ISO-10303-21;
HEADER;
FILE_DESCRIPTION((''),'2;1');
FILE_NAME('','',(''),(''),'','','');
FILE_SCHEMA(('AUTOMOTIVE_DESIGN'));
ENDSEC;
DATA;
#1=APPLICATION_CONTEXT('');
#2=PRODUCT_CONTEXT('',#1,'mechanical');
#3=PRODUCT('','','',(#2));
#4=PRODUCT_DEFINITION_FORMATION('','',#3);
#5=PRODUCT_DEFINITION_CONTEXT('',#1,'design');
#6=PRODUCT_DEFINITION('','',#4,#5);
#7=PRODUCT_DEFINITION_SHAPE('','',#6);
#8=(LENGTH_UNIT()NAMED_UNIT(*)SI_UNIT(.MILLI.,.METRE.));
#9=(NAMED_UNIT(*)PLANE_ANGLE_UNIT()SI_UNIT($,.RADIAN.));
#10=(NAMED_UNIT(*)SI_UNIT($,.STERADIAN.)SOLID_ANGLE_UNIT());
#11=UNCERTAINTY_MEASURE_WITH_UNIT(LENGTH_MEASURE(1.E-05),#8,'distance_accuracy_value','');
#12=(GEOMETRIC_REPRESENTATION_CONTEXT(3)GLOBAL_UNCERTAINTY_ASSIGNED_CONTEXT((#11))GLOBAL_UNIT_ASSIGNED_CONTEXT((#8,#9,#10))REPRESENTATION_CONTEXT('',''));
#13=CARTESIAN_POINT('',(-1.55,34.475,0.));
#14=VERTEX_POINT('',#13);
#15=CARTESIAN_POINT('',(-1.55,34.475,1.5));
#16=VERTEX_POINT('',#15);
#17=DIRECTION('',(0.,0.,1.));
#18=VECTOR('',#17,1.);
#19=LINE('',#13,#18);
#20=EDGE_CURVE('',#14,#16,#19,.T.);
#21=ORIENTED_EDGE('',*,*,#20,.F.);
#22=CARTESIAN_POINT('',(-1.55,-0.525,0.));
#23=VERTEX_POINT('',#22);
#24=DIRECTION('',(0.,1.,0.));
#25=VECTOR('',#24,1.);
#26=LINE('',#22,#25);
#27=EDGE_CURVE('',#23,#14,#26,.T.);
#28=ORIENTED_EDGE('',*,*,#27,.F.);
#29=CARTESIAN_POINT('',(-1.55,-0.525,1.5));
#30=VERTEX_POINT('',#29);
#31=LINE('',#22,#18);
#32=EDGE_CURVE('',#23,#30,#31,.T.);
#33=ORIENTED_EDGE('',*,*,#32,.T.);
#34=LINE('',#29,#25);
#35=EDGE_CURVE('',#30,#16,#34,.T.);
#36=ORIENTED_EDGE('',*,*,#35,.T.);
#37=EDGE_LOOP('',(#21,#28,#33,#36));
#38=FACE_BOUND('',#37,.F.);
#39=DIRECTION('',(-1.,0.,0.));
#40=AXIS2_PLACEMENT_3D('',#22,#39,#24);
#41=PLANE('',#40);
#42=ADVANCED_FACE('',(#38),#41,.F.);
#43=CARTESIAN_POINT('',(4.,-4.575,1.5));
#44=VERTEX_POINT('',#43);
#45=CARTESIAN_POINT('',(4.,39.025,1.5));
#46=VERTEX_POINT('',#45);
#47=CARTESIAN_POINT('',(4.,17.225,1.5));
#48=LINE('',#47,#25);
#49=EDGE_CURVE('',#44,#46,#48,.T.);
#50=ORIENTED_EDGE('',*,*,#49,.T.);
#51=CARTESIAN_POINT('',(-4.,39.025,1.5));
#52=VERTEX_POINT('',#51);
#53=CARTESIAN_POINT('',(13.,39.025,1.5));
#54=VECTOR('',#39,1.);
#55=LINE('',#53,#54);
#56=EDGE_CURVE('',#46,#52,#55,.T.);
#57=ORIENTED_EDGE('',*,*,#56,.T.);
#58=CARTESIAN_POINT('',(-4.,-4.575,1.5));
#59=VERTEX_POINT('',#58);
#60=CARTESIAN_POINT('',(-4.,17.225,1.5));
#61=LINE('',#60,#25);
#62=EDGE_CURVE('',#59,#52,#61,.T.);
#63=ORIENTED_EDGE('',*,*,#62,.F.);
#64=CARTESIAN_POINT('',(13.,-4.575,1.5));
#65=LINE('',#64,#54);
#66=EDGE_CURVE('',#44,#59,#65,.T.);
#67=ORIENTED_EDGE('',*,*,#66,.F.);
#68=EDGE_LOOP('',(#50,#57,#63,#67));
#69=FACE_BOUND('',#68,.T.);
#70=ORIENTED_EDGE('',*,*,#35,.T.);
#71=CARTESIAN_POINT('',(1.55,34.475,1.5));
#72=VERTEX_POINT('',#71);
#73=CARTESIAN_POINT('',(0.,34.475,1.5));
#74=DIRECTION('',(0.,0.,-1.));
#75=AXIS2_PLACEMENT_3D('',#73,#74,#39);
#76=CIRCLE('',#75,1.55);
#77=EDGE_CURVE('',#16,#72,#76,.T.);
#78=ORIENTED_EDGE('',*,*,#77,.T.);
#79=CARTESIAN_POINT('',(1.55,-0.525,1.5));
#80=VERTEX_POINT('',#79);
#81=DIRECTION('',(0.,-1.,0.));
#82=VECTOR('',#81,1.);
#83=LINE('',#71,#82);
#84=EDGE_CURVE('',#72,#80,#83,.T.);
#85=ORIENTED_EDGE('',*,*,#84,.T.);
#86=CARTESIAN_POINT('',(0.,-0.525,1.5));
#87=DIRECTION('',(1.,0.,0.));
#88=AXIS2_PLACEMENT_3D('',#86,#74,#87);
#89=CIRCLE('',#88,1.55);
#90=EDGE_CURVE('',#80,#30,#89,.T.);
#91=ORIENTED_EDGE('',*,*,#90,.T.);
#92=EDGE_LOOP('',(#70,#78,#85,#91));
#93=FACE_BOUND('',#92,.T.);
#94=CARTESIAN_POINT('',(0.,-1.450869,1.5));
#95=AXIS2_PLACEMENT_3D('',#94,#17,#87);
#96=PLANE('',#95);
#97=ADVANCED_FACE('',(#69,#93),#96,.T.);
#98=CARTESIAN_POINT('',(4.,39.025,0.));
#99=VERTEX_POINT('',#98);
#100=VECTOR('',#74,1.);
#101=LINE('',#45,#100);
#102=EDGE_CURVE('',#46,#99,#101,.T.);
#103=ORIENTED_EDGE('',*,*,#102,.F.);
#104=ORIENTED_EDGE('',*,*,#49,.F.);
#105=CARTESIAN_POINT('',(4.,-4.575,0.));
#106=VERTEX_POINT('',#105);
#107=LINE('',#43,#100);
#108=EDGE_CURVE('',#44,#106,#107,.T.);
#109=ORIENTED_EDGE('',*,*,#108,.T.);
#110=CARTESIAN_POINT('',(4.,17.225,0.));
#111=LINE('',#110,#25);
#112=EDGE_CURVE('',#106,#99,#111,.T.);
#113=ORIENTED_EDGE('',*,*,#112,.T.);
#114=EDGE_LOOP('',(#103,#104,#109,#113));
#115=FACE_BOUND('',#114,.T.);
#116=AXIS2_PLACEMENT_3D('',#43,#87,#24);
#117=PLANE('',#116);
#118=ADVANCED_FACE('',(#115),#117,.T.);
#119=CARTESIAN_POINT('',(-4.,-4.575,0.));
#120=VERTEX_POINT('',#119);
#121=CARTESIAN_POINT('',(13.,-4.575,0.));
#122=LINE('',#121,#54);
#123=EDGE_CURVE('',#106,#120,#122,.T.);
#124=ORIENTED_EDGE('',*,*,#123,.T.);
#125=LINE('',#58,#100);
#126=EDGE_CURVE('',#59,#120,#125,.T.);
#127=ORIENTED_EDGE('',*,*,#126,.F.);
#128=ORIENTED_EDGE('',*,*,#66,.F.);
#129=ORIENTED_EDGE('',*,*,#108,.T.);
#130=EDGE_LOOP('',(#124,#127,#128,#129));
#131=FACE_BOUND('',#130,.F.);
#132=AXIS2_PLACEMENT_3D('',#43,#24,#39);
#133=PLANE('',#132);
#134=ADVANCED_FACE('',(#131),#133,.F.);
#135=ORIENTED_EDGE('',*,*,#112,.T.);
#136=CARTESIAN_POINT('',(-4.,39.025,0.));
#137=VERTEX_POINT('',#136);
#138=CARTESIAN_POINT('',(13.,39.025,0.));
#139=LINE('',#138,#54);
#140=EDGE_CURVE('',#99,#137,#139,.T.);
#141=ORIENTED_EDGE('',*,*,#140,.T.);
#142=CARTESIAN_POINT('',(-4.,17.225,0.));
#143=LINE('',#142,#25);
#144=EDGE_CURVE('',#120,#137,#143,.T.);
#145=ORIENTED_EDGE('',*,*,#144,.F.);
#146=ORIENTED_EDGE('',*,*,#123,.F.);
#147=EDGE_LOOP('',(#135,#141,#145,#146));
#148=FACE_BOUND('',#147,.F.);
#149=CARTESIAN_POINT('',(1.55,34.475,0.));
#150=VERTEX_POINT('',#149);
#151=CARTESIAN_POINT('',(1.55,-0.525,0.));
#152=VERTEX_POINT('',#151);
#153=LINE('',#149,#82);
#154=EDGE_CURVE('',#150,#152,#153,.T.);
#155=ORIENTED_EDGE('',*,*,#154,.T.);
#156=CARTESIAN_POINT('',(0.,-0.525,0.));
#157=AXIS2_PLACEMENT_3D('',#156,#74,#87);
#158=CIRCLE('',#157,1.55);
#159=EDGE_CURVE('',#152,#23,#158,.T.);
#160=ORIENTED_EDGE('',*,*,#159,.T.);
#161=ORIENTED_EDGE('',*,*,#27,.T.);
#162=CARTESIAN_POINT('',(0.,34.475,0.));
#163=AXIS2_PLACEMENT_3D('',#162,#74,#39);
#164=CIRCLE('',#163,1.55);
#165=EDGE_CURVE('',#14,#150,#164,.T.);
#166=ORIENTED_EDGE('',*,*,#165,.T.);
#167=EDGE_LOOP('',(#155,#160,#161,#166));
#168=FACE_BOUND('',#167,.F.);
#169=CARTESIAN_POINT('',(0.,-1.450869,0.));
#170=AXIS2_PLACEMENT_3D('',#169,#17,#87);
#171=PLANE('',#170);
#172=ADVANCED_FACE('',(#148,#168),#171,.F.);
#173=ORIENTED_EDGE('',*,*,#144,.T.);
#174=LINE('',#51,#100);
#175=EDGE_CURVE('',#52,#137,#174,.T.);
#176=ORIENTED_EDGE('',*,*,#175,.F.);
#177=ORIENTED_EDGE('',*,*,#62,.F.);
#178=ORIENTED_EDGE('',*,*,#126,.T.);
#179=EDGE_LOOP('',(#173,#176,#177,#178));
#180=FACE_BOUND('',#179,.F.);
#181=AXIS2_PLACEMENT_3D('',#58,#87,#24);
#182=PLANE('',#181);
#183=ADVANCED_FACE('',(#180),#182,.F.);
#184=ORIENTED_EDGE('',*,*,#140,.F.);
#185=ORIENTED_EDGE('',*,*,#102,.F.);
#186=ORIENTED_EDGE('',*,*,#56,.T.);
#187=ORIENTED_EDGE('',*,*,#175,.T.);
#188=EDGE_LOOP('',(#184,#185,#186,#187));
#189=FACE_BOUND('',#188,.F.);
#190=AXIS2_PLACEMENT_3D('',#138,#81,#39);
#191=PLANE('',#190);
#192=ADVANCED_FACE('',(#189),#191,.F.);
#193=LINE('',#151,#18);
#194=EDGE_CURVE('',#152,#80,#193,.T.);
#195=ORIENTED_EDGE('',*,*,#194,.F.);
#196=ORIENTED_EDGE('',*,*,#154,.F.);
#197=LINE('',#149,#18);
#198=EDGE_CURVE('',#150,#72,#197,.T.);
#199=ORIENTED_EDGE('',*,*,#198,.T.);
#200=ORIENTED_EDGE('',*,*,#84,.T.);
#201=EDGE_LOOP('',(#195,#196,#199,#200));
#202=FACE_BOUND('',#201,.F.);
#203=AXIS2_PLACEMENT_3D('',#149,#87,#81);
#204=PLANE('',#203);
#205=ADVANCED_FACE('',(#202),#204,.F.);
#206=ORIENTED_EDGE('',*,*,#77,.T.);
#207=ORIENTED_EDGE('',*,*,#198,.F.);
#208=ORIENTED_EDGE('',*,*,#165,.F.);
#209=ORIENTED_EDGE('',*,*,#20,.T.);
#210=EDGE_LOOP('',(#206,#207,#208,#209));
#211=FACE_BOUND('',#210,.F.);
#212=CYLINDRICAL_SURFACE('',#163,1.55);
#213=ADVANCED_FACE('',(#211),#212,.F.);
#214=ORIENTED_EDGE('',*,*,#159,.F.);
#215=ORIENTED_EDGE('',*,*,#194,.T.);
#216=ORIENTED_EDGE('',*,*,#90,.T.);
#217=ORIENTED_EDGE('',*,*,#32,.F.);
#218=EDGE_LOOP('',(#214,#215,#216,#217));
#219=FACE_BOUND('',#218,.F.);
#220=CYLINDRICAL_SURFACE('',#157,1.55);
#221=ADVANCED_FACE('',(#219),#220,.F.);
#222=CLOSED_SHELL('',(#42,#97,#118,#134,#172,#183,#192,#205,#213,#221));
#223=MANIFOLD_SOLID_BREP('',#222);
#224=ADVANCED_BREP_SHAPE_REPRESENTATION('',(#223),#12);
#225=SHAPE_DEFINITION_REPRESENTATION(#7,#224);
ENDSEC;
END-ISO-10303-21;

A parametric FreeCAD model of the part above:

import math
import FreeCAD as App
import Part
import Sketcher

doc = App.newDocument("Part")
body = doc.addObject("PartDesign::Body", "Body")

sketch1 = body.newObject("Sketcher::SketchObject", "Sketch")
sketch1.AttachmentSupport = (doc.getObject("XY_Plane"), [""])
sketch1.MapMode = "FlatFace"
sketch1.addGeometry([
    Part.LineSegment(App.Vector(13, 39, 0), App.Vector(-13, 39, 0)),
    Part.LineSegment(App.Vector(-13, 39, 0), App.Vector(-13, -39, 0)),
    Part.LineSegment(App.Vector(-13, -39, 0), App.Vector(-6.2, -39, 0)),
    Part.LineSegment(App.Vector(-6.2, -39, 0), App.Vector(-6.2, -36.5, 0)),
    Part.ArcOfCircle(Part.Circle(App.Vector(0, -36.5, 0), App.Vector(0, 0, 1), 6.2), math.radians(0), math.radians(180)),
    Part.LineSegment(App.Vector(6.2, -36.5, 0), App.Vector(6.2, -39, 0)),
    Part.LineSegment(App.Vector(6.2, -39, 0), App.Vector(13, -39, 0)),
    Part.LineSegment(App.Vector(13, -39, 0), App.Vector(13, 39, 0)),
    Part.Circle(App.Vector(-10.5, -36.5, 0), App.Vector(0, 0, 1), 1),
    Part.Circle(App.Vector(-10.5, -15.5, 0), App.Vector(0, 0, 1), 1),
    Part.Circle(App.Vector(0, -26, 0), App.Vector(0, 0, 1), 2),
    Part.Circle(App.Vector(10.5, -36.5, 0), App.Vector(0, 0, 1), 1),
    Part.Circle(App.Vector(0, -15.5, 0), App.Vector(0, 0, 1), 6.2),
    Part.Circle(App.Vector(10.5, -15.5, 0), App.Vector(0, 0, 1), 1),
    Part.ArcOfCircle(Part.Circle(App.Vector(0, -0.5, 0), App.Vector(0, 0, 1), 1.6), math.radians(180), math.radians(360)),
    Part.LineSegment(App.Vector(-1.6, -0.5, 0), App.Vector(-1.6, 34.5, 0)),
    Part.ArcOfCircle(Part.Circle(App.Vector(0, 34.5, 0), App.Vector(0, 0, 1), 1.6), math.radians(0), math.radians(180)),
    Part.LineSegment(App.Vector(1.6, 34.5, 0), App.Vector(1.6, -0.5, 0)),
], False)
sketch1.addConstraint([
    Sketcher.Constraint("Coincident", 0, 2, 1, 1),
    Sketcher.Constraint("Coincident", 1, 2, 2, 1),
    Sketcher.Constraint("Coincident", 2, 2, 3, 1),
    Sketcher.Constraint("Tangent", 3, 2, 4, 2),
    Sketcher.Constraint("Tangent", 4, 1, 5, 1),
    Sketcher.Constraint("Coincident", 5, 2, 6, 1),
    Sketcher.Constraint("Coincident", 6, 2, 7, 1),
    Sketcher.Constraint("Coincident", 7, 2, 0, 1),
    Sketcher.Constraint("Tangent", 14, 1, 15, 1),
    Sketcher.Constraint("Tangent", 15, 2, 16, 2),
    Sketcher.Constraint("Tangent", 16, 1, 17, 1),
    Sketcher.Constraint("Tangent", 17, 2, 14, 2),
    Sketcher.Constraint("Horizontal", 0),
    Sketcher.Constraint("Vertical", 1),
    Sketcher.Constraint("Horizontal", 2),
    Sketcher.Constraint("Vertical", 3),
    Sketcher.Constraint("Vertical", 5),
    Sketcher.Constraint("Horizontal", 6),
    Sketcher.Constraint("Vertical", 7),
    Sketcher.Constraint("Vertical", 15),
    Sketcher.Constraint("Vertical", 17),
    Sketcher.Constraint("Equal", 8, 9),
    Sketcher.Constraint("Equal", 9, 11),
    Sketcher.Constraint("Equal", 4, 12),
    Sketcher.Constraint("Equal", 11, 13),
    Sketcher.Constraint("Symmetric", 0, 2, 6, 2, -1, 1),
    Sketcher.Constraint("Symmetric", 8, 3, 11, 3, -2),
    Sketcher.Constraint("Symmetric", 9, 3, 13, 3, -2),
    Sketcher.Constraint("Symmetric", 2, 2, 5, 2, -2),
    Sketcher.Constraint("PointOnObject", 10, 3, -2),
    Sketcher.Constraint("PointOnObject", 12, 3, -2),
    Sketcher.Constraint("PointOnObject", 14, 3, -2),
    Sketcher.Constraint("Horizontal", 4, 3, 8, 3),
    Sketcher.Constraint("Horizontal", 9, 3, 12, 3),
    Sketcher.Constraint("Vertical", 8, 3, 9, 3),
    Sketcher.Constraint("Diameter", 8, 2.0),
    Sketcher.Constraint("Diameter", 10, 4.0),
    Sketcher.Constraint("Diameter", 12, 12.5),
    Sketcher.Constraint("DistanceX", 0, 2, 0, 1, 26.0),
    Sketcher.Constraint("DistanceY", 15, 1, 15, 2, 35.0),
    Sketcher.Constraint("Radius", 14, 1.55),
    Sketcher.Constraint("DistanceY", 3, 1, 3, 2, 2.5),
    Sketcher.Constraint("DistanceY", 8, 3, 9, 3, 21.0),
    Sketcher.Constraint("DistanceX", 8, 3, 11, 3, 21.0),
    Sketcher.Constraint("DistanceY", 12, 3, 14, 3, 15.0),
    Sketcher.Constraint("DistanceY", 1, 2, 10, 3, 13.0),
    Sketcher.Constraint("DistanceY", 1, 2, 1, 1, 78.05),
])
pad1 = body.newObject("PartDesign::Pad", "Pad")
pad1.Profile = sketch1
pad1.Length = 1.5

sketch2 = body.newObject("Sketcher::SketchObject", "Sketch001")
sketch2.AttachmentSupport = (doc.getObject("XY_Plane"), [""])
sketch2.MapMode = "FlatFace"
sketch2.AttachmentOffset = App.Placement(App.Vector(0, 0, 1.5), App.Rotation())
sketch2.addGeometry([
    Part.LineSegment(App.Vector(-13, -39, 0), App.Vector(-6.2, -39, 0)),
    Part.LineSegment(App.Vector(-6.2, -39, 0), App.Vector(-6.2, -36.5, 0)),
    Part.ArcOfCircle(Part.Circle(App.Vector(0, -36.5, 0), App.Vector(0, 0, 1), 6.2), math.radians(0), math.radians(180)),
    Part.LineSegment(App.Vector(6.2, -36.5, 0), App.Vector(6.2, -39, 0)),
    Part.LineSegment(App.Vector(6.2, -39, 0), App.Vector(13, -39, 0)),
    Part.LineSegment(App.Vector(13, -39, 0), App.Vector(13, 39, 0)),
    Part.LineSegment(App.Vector(13, 39, 0), App.Vector(4, 39, 0)),
    Part.LineSegment(App.Vector(4, 39, 0), App.Vector(4, -4.6, 0)),
    Part.LineSegment(App.Vector(4, -4.6, 0), App.Vector(-4, -4.6, 0)),
    Part.LineSegment(App.Vector(-4, -4.6, 0), App.Vector(-4, 39, 0)),
    Part.LineSegment(App.Vector(-4, 39, 0), App.Vector(-13, 39, 0)),
    Part.LineSegment(App.Vector(-13, 39, 0), App.Vector(-13, -39, 0)),
    Part.Circle(App.Vector(-10.5, -36.5, 0), App.Vector(0, 0, 1), 1),
    Part.Circle(App.Vector(10.5, -36.5, 0), App.Vector(0, 0, 1), 1),
    Part.Circle(App.Vector(0, -26, 0), App.Vector(0, 0, 1), 2),
    Part.Circle(App.Vector(-10.5, -15.5, 0), App.Vector(0, 0, 1), 1),
    Part.Circle(App.Vector(0, -15.5, 0), App.Vector(0, 0, 1), 6.2),
    Part.Circle(App.Vector(10.5, -15.5, 0), App.Vector(0, 0, 1), 1),
], False)
sketch2.addConstraint([
    Sketcher.Constraint("Coincident", 0, 2, 1, 1),
    Sketcher.Constraint("Tangent", 1, 2, 2, 2),
    Sketcher.Constraint("Tangent", 2, 1, 3, 1),
    Sketcher.Constraint("Coincident", 3, 2, 4, 1),
    Sketcher.Constraint("Coincident", 4, 2, 5, 1),
    Sketcher.Constraint("Coincident", 5, 2, 6, 1),
    Sketcher.Constraint("Coincident", 6, 2, 7, 1),
    Sketcher.Constraint("Coincident", 7, 2, 8, 1),
    Sketcher.Constraint("Coincident", 8, 2, 9, 1),
    Sketcher.Constraint("Coincident", 9, 2, 10, 1),
    Sketcher.Constraint("Coincident", 10, 2, 11, 1),
    Sketcher.Constraint("Coincident", 11, 2, 0, 1),
    Sketcher.Constraint("Horizontal", 0),
    Sketcher.Constraint("Vertical", 1),
    Sketcher.Constraint("Vertical", 3),
    Sketcher.Constraint("Horizontal", 4),
    Sketcher.Constraint("Vertical", 5),
    Sketcher.Constraint("Horizontal", 6),
    Sketcher.Constraint("Vertical", 7),
    Sketcher.Constraint("Horizontal", 8),
    Sketcher.Constraint("Vertical", 9),
    Sketcher.Constraint("Horizontal", 10),
    Sketcher.Constraint("Vertical", 11),
    Sketcher.Constraint("Equal", 12, 13),
    Sketcher.Constraint("Equal", 13, 15),
    Sketcher.Constraint("Equal", 2, 16),
    Sketcher.Constraint("Equal", 15, 17),
    Sketcher.Constraint("Symmetric", 4, 2, 10, 2, -1, 1),
    Sketcher.Constraint("Symmetric", 12, 3, 13, 3, -2),
    Sketcher.Constraint("Symmetric", 15, 3, 17, 3, -2),
    Sketcher.Constraint("Symmetric", 0, 2, 3, 2, -2),
    Sketcher.Constraint("Symmetric", 6, 2, 9, 2, -2),
    Sketcher.Constraint("PointOnObject", 14, 3, -2),
    Sketcher.Constraint("PointOnObject", 16, 3, -2),
    Sketcher.Constraint("Horizontal", 2, 3, 12, 3),
    Sketcher.Constraint("Horizontal", 15, 3, 16, 3),
    Sketcher.Constraint("Vertical", 12, 3, 15, 3),
    Sketcher.Constraint("Diameter", 12, 2.0),
    Sketcher.Constraint("Diameter", 14, 4.0),
    Sketcher.Constraint("Diameter", 16, 12.5),
    Sketcher.Constraint("DistanceX", 6, 2, 6, 1, 9.0),
    Sketcher.Constraint("DistanceX", 8, 2, 8, 1, 8.0),
    Sketcher.Constraint("DistanceY", 1, 1, 1, 2, 2.5),
    Sketcher.Constraint("DistanceY", 7, 2, 7, 1, 43.6),
    Sketcher.Constraint("DistanceX", 12, 3, 13, 3, 21.0),
    Sketcher.Constraint("DistanceY", 12, 3, 15, 3, 21.0),
    Sketcher.Constraint("DistanceY", 0, 2, 14, 3, 13.0),
    Sketcher.Constraint("DistanceY", 5, 1, 5, 2, 78.05),
])
pocket1 = body.newObject("PartDesign::Pocket", "Pocket")
pocket1.Profile = sketch2
pocket1.Type = "ThroughAll"

doc.recompute()
